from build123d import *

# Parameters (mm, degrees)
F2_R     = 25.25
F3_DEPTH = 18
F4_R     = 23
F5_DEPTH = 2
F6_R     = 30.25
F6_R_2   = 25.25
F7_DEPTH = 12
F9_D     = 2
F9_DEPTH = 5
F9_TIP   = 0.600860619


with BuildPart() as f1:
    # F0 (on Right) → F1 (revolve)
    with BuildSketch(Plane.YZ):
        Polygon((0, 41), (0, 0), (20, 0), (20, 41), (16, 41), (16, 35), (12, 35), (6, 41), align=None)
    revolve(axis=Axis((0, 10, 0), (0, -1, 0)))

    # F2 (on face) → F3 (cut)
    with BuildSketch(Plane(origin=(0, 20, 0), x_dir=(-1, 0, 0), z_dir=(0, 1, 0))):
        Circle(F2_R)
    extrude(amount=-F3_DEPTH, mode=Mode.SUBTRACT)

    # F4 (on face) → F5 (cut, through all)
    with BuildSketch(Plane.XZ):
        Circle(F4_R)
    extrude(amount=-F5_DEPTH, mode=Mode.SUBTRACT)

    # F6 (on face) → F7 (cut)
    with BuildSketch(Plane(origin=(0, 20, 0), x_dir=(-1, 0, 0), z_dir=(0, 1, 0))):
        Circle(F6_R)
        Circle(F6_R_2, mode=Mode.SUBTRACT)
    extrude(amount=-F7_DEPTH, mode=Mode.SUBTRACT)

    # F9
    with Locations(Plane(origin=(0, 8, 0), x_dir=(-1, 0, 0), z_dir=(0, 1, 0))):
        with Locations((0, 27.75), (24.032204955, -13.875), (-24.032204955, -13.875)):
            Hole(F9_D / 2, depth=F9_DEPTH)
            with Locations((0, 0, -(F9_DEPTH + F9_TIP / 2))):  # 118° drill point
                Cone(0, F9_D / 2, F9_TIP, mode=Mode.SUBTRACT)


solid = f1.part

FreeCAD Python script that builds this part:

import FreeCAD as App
import Part
import Sketcher

V = App.Vector
Q = App.Units.Quantity

doc = App.newDocument("Part")
body = doc.addObject("PartDesign::Body", "Body")

# Sketch on YZ plane
sketch1 = doc.addObject("Sketcher::SketchObject", "Sketch")
body.addObject(sketch1)
sketch1.AttachmentSupport = (doc.YZ_Plane, [""])
sketch1.MapMode = "FlatFace"
sketch1.addGeometry([
    Part.LineSegment(V(0, 41, 0), V(0, 0, 0)),  # 0
    Part.LineSegment(V(0, 0, 0), V(20, 0, 0)),  # 1
    Part.LineSegment(V(20, 0, 0), V(20, 41, 0)),  # 2
    Part.LineSegment(V(20, 41, 0), V(16, 41, 0)),  # 3
    Part.LineSegment(V(16, 41, 0), V(16, 35, 0)),  # 4
    Part.LineSegment(V(16, 35, 0), V(12, 35, 0)),  # 5
    Part.LineSegment(V(12, 35, 0), V(6, 41, 0)),  # 6
    Part.LineSegment(V(6, 41, 0), V(0, 41, 0)),  # 7
], False)
sketch1.addConstraint([
    Sketcher.Constraint("Coincident", 0, 2, 1, 1),
    Sketcher.Constraint("Coincident", 1, 2, 2, 1),
    Sketcher.Constraint("Coincident", 2, 2, 3, 1),
    Sketcher.Constraint("Coincident", 3, 2, 4, 1),
    Sketcher.Constraint("Coincident", 4, 2, 5, 1),
    Sketcher.Constraint("Coincident", 5, 2, 6, 1),
    Sketcher.Constraint("Coincident", 6, 2, 7, 1),
    Sketcher.Constraint("Coincident", 7, 2, 0, 1),
    Sketcher.Constraint("Vertical", 0),
    Sketcher.Constraint("Horizontal", 1),
    Sketcher.Constraint("Vertical", 2),
    Sketcher.Constraint("Horizontal", 3),
    Sketcher.Constraint("Vertical", 4),
    Sketcher.Constraint("Horizontal", 5),
    Sketcher.Constraint("Horizontal", 7),
    Sketcher.Constraint("Coincident", 0, 2, -1, 1),
    Sketcher.Constraint("Horizontal", 3, 2, 6, 2),
    Sketcher.Constraint("Equal", 3, 5),
    Sketcher.Constraint("Equal", 7, 4),
    Sketcher.Constraint("DistanceX", 1, 1, 1, 2, Q("20 mm")),
    Sketcher.Constraint("DistanceX", 3, 2, 3, 1, Q("4 mm")),
    Sketcher.Constraint("DistanceX", 7, 2, 7, 1, Q("6 mm")),
    Sketcher.Constraint("DistanceY", 0, 2, 0, 1, Q("41 mm")),
])
revolution = doc.addObject("PartDesign::Revolution", "Revolution")
body.addObject(revolution)
revolution.Profile = sketch1
revolution.ReferenceAxis = (sketch1, ["H_Axis"])
revolution.Angle = 360

# Sketch on XZ plane
sketch2 = doc.addObject("Sketcher::SketchObject", "Sketch001")
body.addObject(sketch2)
sketch2.AttachmentSupport = (doc.XZ_Plane, [""])
sketch2.MapMode = "FlatFace"
sketch2.AttachmentOffset = App.Placement(V(0, 0, -20), App.Rotation())
sketch2.addGeometry(Part.Circle(V(0, 0, 0), V(0, 0, 1), 25.25), False)
sketch2.addConstraint([
    Sketcher.Constraint("Coincident", 0, 3, -1, 1),
    Sketcher.Constraint("Diameter", 0, Q("50.5 mm")),
])
pocket1 = doc.addObject("PartDesign::Pocket", "Pocket")
body.addObject(pocket1)
pocket1.Profile = sketch2
pocket1.Length = 18
pocket1.Reversed = True

# Sketch on XZ plane
sketch3 = doc.addObject("Sketcher::SketchObject", "Sketch002")
body.addObject(sketch3)
sketch3.AttachmentSupport = (doc.XZ_Plane, [""])
sketch3.MapMode = "FlatFace"
sketch3.addGeometry(Part.Circle(V(0, 0, 0), V(0, 0, 1), 23), False)
sketch3.addConstraint([
    Sketcher.Constraint("Coincident", 0, 3, -1, 1),
    Sketcher.Constraint("Diameter", 0, Q("46 mm")),
])
pocket2 = doc.addObject("PartDesign::Pocket", "Pocket001")
body.addObject(pocket2)
pocket2.Profile = sketch3
pocket2.Type = "ThroughAll"

# Sketch on XZ plane
sketch4 = doc.addObject("Sketcher::SketchObject", "Sketch003")
body.addObject(sketch4)
sketch4.AttachmentSupport = (doc.XZ_Plane, [""])
sketch4.MapMode = "FlatFace"
sketch4.AttachmentOffset = App.Placement(V(0, 0, -20), App.Rotation())
sketch4.addGeometry([
    Part.Circle(V(0, 0, 0), V(0, 0, 1), 30.25),
    Part.Circle(V(0, 0, 0), V(0, 0, 1), 25.25),
], False)
sketch4.addConstraint([
    Sketcher.Constraint("Coincident", 0, 3, -1, 1),
    Sketcher.Constraint("Coincident", 1, 3, -1, 1),
    Sketcher.Constraint("Diameter", 0, Q("60.5 mm")),
    Sketcher.Constraint("Diameter", 1, Q("50.5 mm")),
])
pocket3 = doc.addObject("PartDesign::Pocket", "Pocket002")
body.addObject(pocket3)
pocket3.Profile = sketch4
pocket3.Length = 12
pocket3.Reversed = True

# Sketch on XZ plane
sketch5 = doc.addObject("Sketcher::SketchObject", "Sketch004")
body.addObject(sketch5)
sketch5.AttachmentSupport = (doc.XZ_Plane, [""])
sketch5.MapMode = "FlatFace"
sketch5.AttachmentOffset = App.Placement(V(0, 0, -8), App.Rotation())
sketch5.addGeometry([
    Part.Circle(V(0, 27.75, 0), V(0, 0, 1), 1),
    Part.Circle(V(-24.032205, -13.875, 0), V(0, 0, 1), 1),
    Part.Circle(V(24.032205, -13.875, 0), V(0, 0, 1), 1),
], False)
sketch5.addConstraint([
    Sketcher.Constraint("Equal", 0, 1),
    Sketcher.Constraint("Equal", 1, 2),
    Sketcher.Constraint("Symmetric", 1, 3, 2, 3, -2),
    Sketcher.Constraint("PointOnObject", 0, 3, -2),
    Sketcher.Constraint("Diameter", 0, Q("2 mm")),
    Sketcher.Constraint("DistanceY", -1, 1, 0, 3, Q("27.75 mm")),
    Sketcher.Constraint("DistanceY", 1, 3, -1, 1, Q("13.875 mm")),
    Sketcher.Constraint("DistanceX", 1, 3, 2, 3, Q("48.06441 mm")),
])
doc.recompute()
hole = doc.addObject("PartDesign::Hole", "Hole")
body.addObject(hole)
hole.Profile = sketch5
hole.ThreadType = "None"
hole.Diameter = 2
hole.DepthType = "Dimension"
hole.Depth = 5
hole.DrillPoint = "Angled"
hole.DrillPointAngle = 118
hole.Reversed = True

doc.recompute()
